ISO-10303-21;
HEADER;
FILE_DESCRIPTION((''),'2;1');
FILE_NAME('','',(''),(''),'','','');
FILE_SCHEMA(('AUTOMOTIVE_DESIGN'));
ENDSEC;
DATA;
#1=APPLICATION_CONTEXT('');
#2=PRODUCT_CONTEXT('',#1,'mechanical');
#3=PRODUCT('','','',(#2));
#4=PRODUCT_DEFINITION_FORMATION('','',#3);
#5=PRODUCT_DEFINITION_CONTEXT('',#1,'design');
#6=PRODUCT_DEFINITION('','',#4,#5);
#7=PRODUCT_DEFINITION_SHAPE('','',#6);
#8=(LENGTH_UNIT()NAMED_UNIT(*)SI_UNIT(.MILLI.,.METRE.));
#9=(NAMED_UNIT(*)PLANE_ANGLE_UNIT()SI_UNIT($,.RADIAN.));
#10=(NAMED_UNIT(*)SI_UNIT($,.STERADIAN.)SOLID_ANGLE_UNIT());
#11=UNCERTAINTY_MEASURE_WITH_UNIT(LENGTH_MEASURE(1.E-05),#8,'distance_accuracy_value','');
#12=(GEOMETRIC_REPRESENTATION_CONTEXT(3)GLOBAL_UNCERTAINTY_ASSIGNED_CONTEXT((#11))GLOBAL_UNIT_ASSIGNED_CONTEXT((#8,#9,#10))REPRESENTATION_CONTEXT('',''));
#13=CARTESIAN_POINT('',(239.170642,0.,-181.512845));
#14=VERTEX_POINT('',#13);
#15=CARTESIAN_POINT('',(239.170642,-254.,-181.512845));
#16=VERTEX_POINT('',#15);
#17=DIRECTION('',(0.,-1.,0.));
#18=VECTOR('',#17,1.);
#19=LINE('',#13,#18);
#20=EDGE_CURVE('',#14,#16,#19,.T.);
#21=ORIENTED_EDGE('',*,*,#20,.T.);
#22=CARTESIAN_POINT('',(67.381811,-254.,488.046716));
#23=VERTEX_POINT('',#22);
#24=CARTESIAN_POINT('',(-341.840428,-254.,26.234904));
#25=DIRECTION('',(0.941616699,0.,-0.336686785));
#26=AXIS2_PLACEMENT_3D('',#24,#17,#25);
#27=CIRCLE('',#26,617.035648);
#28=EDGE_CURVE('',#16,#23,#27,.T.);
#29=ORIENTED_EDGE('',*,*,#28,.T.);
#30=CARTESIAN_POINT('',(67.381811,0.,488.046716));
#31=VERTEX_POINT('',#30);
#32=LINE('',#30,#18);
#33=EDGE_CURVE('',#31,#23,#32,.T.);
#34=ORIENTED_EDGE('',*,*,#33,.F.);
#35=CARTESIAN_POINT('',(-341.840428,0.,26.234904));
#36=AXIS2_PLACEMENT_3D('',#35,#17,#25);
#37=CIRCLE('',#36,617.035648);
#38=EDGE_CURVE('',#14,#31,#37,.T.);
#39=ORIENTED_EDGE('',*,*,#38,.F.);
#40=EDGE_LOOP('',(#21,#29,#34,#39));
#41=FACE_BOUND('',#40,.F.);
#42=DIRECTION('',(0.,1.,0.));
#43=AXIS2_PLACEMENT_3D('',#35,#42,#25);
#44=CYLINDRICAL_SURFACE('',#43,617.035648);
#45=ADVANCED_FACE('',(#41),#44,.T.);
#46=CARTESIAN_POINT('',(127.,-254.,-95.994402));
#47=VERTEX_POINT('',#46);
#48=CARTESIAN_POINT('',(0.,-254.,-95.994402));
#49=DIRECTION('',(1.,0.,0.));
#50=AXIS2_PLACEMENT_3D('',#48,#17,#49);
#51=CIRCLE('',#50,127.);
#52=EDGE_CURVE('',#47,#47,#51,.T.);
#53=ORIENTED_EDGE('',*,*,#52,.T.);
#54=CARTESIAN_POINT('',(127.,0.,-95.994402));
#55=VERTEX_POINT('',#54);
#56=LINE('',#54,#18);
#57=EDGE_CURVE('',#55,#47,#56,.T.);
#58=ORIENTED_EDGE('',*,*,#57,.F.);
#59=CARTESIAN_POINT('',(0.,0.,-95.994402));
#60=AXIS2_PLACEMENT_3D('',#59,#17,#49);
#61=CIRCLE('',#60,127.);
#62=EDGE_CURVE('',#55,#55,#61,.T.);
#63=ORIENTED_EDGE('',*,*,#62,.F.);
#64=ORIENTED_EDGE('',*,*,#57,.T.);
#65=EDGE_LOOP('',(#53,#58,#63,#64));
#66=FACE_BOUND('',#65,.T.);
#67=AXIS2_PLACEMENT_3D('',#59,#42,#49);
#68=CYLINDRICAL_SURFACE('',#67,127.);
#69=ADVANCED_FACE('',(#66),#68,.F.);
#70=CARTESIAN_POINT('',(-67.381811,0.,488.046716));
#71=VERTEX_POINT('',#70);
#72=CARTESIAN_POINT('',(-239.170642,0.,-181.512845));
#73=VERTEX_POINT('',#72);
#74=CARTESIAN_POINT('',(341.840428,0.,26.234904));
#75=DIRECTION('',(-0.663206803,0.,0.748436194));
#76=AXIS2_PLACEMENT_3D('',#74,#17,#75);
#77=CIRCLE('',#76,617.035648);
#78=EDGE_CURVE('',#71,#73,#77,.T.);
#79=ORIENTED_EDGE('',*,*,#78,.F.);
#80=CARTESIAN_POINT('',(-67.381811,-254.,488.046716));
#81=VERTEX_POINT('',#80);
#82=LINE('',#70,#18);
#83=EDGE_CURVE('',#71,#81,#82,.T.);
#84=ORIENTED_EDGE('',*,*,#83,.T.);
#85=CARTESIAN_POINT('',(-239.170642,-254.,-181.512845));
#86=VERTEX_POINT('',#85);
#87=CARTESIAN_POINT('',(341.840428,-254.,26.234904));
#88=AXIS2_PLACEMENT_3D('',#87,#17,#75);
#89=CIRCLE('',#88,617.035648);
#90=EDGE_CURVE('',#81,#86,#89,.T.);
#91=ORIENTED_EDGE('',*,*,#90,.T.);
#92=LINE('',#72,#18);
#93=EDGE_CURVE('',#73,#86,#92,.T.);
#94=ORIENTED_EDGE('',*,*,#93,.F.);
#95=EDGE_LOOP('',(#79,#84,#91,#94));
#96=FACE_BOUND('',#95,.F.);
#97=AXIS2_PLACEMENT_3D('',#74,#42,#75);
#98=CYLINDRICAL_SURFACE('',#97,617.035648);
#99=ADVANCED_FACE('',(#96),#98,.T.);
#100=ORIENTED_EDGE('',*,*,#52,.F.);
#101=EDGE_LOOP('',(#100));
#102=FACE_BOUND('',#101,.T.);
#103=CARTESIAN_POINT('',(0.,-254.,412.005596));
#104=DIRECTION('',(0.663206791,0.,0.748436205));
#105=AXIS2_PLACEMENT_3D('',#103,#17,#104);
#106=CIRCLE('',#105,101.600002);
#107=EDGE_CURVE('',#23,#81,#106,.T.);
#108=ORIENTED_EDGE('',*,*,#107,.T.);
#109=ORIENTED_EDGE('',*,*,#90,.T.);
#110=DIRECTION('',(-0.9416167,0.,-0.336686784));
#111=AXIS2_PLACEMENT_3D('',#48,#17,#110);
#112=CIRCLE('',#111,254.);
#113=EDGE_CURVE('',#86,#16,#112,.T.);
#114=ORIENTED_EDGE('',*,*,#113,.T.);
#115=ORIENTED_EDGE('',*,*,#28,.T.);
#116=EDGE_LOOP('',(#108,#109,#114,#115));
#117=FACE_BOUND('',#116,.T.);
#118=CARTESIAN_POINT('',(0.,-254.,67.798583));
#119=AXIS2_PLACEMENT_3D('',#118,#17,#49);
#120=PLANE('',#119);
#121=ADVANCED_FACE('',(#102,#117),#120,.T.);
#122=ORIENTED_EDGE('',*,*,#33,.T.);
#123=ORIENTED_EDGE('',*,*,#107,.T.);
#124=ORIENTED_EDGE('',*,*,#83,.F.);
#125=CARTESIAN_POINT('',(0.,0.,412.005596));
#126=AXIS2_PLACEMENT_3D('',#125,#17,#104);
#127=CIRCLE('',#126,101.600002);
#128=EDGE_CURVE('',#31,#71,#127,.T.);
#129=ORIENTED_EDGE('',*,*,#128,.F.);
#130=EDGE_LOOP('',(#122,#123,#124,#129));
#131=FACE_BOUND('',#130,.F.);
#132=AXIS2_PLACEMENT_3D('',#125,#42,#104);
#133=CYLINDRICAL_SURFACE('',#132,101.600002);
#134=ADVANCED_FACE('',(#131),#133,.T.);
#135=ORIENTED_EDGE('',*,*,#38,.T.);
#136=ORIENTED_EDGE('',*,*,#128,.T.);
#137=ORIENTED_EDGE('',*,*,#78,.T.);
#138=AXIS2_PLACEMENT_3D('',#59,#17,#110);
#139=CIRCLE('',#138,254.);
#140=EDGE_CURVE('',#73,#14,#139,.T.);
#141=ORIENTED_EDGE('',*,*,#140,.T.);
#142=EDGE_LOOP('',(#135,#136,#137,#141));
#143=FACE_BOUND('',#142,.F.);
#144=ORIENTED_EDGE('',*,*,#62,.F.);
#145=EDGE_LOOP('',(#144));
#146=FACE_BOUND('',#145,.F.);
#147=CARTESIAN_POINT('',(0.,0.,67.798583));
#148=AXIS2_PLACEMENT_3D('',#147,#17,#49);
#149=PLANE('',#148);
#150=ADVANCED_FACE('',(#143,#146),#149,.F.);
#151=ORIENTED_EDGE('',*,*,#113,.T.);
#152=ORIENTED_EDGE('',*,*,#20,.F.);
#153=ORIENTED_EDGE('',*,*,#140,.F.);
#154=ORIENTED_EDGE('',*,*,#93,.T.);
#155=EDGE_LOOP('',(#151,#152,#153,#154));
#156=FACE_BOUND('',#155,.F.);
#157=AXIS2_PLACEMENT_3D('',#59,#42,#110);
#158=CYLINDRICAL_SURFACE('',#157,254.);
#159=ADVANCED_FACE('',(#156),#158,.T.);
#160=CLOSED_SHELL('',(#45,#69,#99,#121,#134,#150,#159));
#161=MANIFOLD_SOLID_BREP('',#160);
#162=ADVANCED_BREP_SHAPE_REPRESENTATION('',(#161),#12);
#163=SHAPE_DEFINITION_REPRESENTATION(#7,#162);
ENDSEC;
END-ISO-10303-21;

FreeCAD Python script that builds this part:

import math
import FreeCAD as App
import Part
import Sketcher

V = App.Vector
Q = App.Units.Quantity

doc = App.newDocument("Part")
body = doc.addObject("PartDesign::Body", "Body")

sketch1 = doc.addObject("Sketcher::SketchObject", "Sketch")
body.addObject(sketch1)
sketch1.AttachmentSupport = (doc.XZ_Plane, [""])
sketch1.MapMode = "FlatFace"
sketch1.addGeometry(Part.ArcOfCircle(Part.Circle(V(341.840428, 26.234904, 0), V(0, 0, 1), 617.035648), math.radians(131.544903), math.radians(199.675143)), False)
sketch1.addGeometry(Part.ArcOfCircle(Part.Circle(V(0, -95.994402, 0), V(0, 0, 1), 254), math.radians(-160.324857), math.radians(-19.675143)), False)
sketch1.addGeometry(Part.ArcOfCircle(Part.Circle(V(-341.840428, 26.234904, 0), V(0, 0, 1), 617.035648), math.radians(-19.675143), math.radians(48.455097)), False)
sketch1.addGeometry(Part.ArcOfCircle(Part.Circle(V(0, 412.005596, 0), V(0, 0, 1), 101.600002), math.radians(48.455098), math.radians(131.544902)), False)
sketch1.addGeometry(Part.Circle(V(0, -95.994402, 0), V(0, 0, 1), 127), False)
sketch1.addConstraint(Sketcher.Constraint("Tangent", 0, 2, 1, 1))
sketch1.addConstraint(Sketcher.Constraint("Tangent", 1, 2, 2, 1))
sketch1.addConstraint(Sketcher.Constraint("Tangent", 2, 2, 3, 1))
sketch1.addConstraint(Sketcher.Constraint("Tangent", 3, 2, 0, 1))
sketch1.addConstraint(Sketcher.Constraint("Coincident", 4, 3, 1, 3))
sketch1.addConstraint(Sketcher.Constraint("Equal", 0, 2))
sketch1.addConstraint(Sketcher.Constraint("Symmetric", 0, 3, 2, 3, -2))
sketch1.addConstraint(Sketcher.Constraint("Diameter", 4, Q("10 in")))
sketch1.addConstraint(Sketcher.Constraint("Radius", 1, Q("10 in")))
sketch1.addConstraint(Sketcher.Constraint("Radius", 3, Q("4.0000001 in")))
sketch1.addConstraint(Sketcher.Constraint("DistanceY", 1, 3, 3, 3, Q("19.9999999 in")))
sketch1.addConstraint(Sketcher.Constraint("Radius", 0, Q("617.035648 mm")))
sketch1.addConstraint(Sketcher.Constraint("DistanceY", 1, 3, -1, 1, Q("95.994402 mm")))
pad1 = doc.addObject("PartDesign::Pad", "Pad")
body.addObject(pad1)
pad1.Profile = sketch1
pad1.Length = Q("10 in")

doc.recompute()
